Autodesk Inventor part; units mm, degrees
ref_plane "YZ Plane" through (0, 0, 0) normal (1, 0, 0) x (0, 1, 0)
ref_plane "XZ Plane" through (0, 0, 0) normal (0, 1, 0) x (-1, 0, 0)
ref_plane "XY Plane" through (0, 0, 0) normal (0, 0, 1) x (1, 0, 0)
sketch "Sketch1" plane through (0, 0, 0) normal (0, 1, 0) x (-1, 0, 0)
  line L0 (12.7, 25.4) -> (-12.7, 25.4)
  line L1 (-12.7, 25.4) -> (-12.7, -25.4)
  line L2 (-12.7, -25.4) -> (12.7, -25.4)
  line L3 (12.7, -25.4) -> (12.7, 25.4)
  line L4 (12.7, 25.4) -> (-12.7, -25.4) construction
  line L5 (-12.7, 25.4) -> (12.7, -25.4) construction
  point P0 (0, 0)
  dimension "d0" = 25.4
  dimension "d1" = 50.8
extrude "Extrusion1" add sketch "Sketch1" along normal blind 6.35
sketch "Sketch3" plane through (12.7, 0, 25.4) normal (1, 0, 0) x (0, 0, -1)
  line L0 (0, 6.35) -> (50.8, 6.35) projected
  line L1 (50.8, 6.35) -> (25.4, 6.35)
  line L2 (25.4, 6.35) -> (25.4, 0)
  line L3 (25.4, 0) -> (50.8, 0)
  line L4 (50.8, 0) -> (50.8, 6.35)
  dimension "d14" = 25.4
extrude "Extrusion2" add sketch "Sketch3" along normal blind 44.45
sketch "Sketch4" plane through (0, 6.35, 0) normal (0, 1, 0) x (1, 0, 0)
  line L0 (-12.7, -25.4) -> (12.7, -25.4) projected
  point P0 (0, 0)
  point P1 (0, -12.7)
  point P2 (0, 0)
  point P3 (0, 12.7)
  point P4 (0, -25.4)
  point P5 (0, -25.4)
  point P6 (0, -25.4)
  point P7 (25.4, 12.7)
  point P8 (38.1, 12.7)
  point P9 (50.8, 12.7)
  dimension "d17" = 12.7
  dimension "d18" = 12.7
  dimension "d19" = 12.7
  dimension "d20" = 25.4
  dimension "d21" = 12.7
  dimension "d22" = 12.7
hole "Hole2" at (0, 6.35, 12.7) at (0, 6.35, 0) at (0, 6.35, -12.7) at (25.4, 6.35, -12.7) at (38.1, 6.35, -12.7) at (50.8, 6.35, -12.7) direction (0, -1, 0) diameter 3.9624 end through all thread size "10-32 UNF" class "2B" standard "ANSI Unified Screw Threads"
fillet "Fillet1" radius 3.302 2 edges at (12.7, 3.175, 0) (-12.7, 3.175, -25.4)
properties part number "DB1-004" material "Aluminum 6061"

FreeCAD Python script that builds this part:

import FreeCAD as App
import Part
import Sketcher

V = App.Vector
Q = App.Units.Quantity


def edges_at(feature, points):
    """Names of the edges that pass closest to the given points."""
    edges = feature.Shape.Edges
    near = lambda p: min(range(len(edges)), key=lambda i: edges[i].distToShape(Part.Vertex(*p))[0])
    return sorted({f"Edge{near(p) + 1}" for p in points})

doc = App.newDocument("Part")
params = doc.addObject("Spreadsheet::Sheet", "Params")
for row, (alias, value) in enumerate([
    ("sketch1_width", "1 in"),
    ("sketch1_height", "2 in"),
    ("pad1_length", "0.25 in"),
    ("sketch2_height", "1 in"),
    ("sketch2_width", "0.25 in"),
    ("pad2_length", "1.75 in"),
    ("sketch3_diameter", "0.156 in"),
    ("hole_diameter", "0.156 in"),
    ("fillet_radius", "0.13 in"),
], start=1):
    params.set(f"A{row}", alias)
    params.set(f"B{row}", "=" + value)
    params.setAlias(f"B{row}", alias)

body = doc.addObject("PartDesign::Body", "Body")

# Sketch on XZ plane
sketch1 = doc.addObject("Sketcher::SketchObject", "Sketch")
body.addObject(sketch1)
sketch1.AttachmentSupport = (doc.XZ_Plane, [""])
sketch1.MapMode = "FlatFace"
sketch1.addGeometry(Part.LineSegment(V(-13, -25, 0), V(-13, 25, 0)), False)
sketch1.addGeometry(Part.LineSegment(V(-13, 25, 0), V(13, 25, 0)), False)
sketch1.addGeometry(Part.LineSegment(V(13, 25, 0), V(13, -25, 0)), False)
sketch1.addGeometry(Part.LineSegment(V(13, -25, 0), V(-13, -25, 0)), False)
sketch1.addConstraint(Sketcher.Constraint("Coincident", 0, 2, 1, 1))
sketch1.addConstraint(Sketcher.Constraint("Coincident", 1, 2, 2, 1))
sketch1.addConstraint(Sketcher.Constraint("Coincident", 2, 2, 3, 1))
sketch1.addConstraint(Sketcher.Constraint("Coincident", 3, 2, 0, 1))
sketch1.addConstraint(Sketcher.Constraint("Vertical", 0))
sketch1.addConstraint(Sketcher.Constraint("Horizontal", 1))
sketch1.addConstraint(Sketcher.Constraint("Vertical", 2))
sketch1.addConstraint(Sketcher.Constraint("Horizontal", 3))
sketch1.addConstraint(Sketcher.Constraint("Symmetric", 0, 2, 2, 2, -1, 1))
sketch1.addConstraint(Sketcher.Constraint("DistanceX", 1, 1, 1, 2, Q("1 in")))
sketch1.addConstraint(Sketcher.Constraint("DistanceY", 0, 1, 0, 2, Q("2 in")))
sketch1.setExpression("Constraints[9]", "Params.sketch1_width")
sketch1.setExpression("Constraints[10]", "Params.sketch1_height")
pad1 = doc.addObject("PartDesign::Pad", "Pad")
body.addObject(pad1)
pad1.Profile = sketch1
pad1.setExpression("Length", "Params.pad1_length")
pad1.Reversed = True

# Sketch on YZ plane
sketch2 = doc.addObject("Sketcher::SketchObject", "Sketch001")
body.addObject(sketch2)
sketch2.AttachmentSupport = (doc.YZ_Plane, [""])
sketch2.MapMode = "FlatFace"
sketch2.AttachmentOffset = App.Placement(V(0, 0, 0.5 * 25.4), App.Rotation())
sketch2.addGeometry(Part.LineSegment(V(6, -25, 0), V(6, 0, 0)), False)
sketch2.addGeometry(Part.LineSegment(V(6, 0, 0), V(0, 0, 0)), False)
sketch2.addGeometry(Part.LineSegment(V(0, 0, 0), V(0, -25, 0)), False)
sketch2.addGeometry(Part.LineSegment(V(0, -25, 0), V(6, -25, 0)), False)
sketch2.addConstraint(Sketcher.Constraint("Coincident", 0, 2, 1, 1))
sketch2.addConstraint(Sketcher.Constraint("Coincident", 1, 2, 2, 1))
sketch2.addConstraint(Sketcher.Constraint("Coincident", 2, 2, 3, 1))
sketch2.addConstraint(Sketcher.Constraint("Coincident", 3, 2, 0, 1))
sketch2.addConstraint(Sketcher.Constraint("Vertical", 0))
sketch2.addConstraint(Sketcher.Constraint("Horizontal", 1))
sketch2.addConstraint(Sketcher.Constraint("Vertical", 2))
sketch2.addConstraint(Sketcher.Constraint("Horizontal", 3))
sketch2.addConstraint(Sketcher.Constraint("Coincident", 1, 2, -1, 1))
sketch2.addConstraint(Sketcher.Constraint("DistanceY", 0, 1, 0, 2, Q("1 in")))
sketch2.addConstraint(Sketcher.Constraint("DistanceX", 1, 2, 1, 1, Q("0.25 in")))
sketch2.setExpression("Constraints[9]", "Params.sketch2_height")
sketch2.setExpression("Constraints[10]", "Params.sketch2_width")
pad2 = doc.addObject("PartDesign::Pad", "Pad001")
body.addObject(pad2)
pad2.Profile = sketch2
pad2.setExpression("Length", "Params.pad2_length")

# Sketch on XZ plane
sketch3 = doc.addObject("Sketcher::SketchObject", "Sketch002")
body.addObject(sketch3)
sketch3.AttachmentSupport = (doc.XZ_Plane, [""])
sketch3.MapMode = "FlatFace"
sketch3.AttachmentOffset = App.Placement(V(0, 0, -0.25 * 25.4), App.Rotation())
sketch3.addGeometry(Part.Circle(V(0, 12.7, 0), V(0, 0, 1), 2), False)
sketch3.addGeometry(Part.Circle(V(0, 0, 0), V(0, 0, 1), 2), False)
sketch3.addGeometry(Part.Circle(V(0, -12.7, 0), V(0, 0, 1), 2), False)
sketch3.addGeometry(Part.Circle(V(25.4, -12.7, 0), V(0, 0, 1), 2), False)
sketch3.addGeometry(Part.Circle(V(38.1, -12.7, 0), V(0, 0, 1), 2), False)
sketch3.addGeometry(Part.Circle(V(50.8, -12.7, 0), V(0, 0, 1), 2), False)
sketch3.addConstraint(Sketcher.Constraint("Coincident", 1, 3, -1, 1))
sketch3.addConstraint(Sketcher.Constraint("Equal", 0, 1))
sketch3.addConstraint(Sketcher.Constraint("Equal", 1, 2))
sketch3.addConstraint(Sketcher.Constraint("Equal", 2, 3))
sketch3.addConstraint(Sketcher.Constraint("Equal", 3, 4))
sketch3.addConstraint(Sketcher.Constraint("Equal", 4, 5))
sketch3.addConstraint(Sketcher.Constraint("Symmetric", 0, 3, 2, 3, -1, 1))
sketch3.addConstraint(Sketcher.Constraint("PointOnObject", 0, 3, -2))
sketch3.addConstraint(Sketcher.Constraint("Horizontal", 2, 3, 3, 3))
sketch3.addConstraint(Sketcher.Constraint("Horizontal", 3, 3, 4, 3))
sketch3.addConstraint(Sketcher.Constraint("Horizontal", 4, 3, 5, 3))
sketch3.addConstraint(Sketcher.Constraint("Diameter", 0, Q("0.156 in")))
sketch3.addConstraint(Sketcher.Constraint("DistanceX", -1, 1, 3, 3, Q("1 in")))
sketch3.addConstraint(Sketcher.Constraint("DistanceX", -1, 1, 5, 3, Q("2 in")))
sketch3.addConstraint(Sketcher.Constraint("DistanceY", 2, 3, 0, 3, Q("1 in")))
sketch3.addConstraint(Sketcher.Constraint("DistanceX", -1, 1, 4, 3, Q("1.5 in")))
sketch3.setExpression("Constraints[11]", "Params.sketch3_diameter")
doc.recompute()
hole = doc.addObject("PartDesign::Hole", "Hole")
body.addObject(hole)
hole.Profile = sketch3
hole.ThreadType = "None"
hole.setExpression("Diameter", "Params.hole_diameter")
hole.DepthType = "ThroughAll"
hole.Reversed = True
doc.recompute()

fillet = doc.addObject("PartDesign::Fillet", "Fillet")
body.addObject(fillet)
fillet.Base = (hole, edges_at(hole, [(12.7, 3.175, 0), (-12.7, 3.175, -25.4)]))
fillet.setExpression("Radius", "Params.fillet_radius")

doc.recompute()
